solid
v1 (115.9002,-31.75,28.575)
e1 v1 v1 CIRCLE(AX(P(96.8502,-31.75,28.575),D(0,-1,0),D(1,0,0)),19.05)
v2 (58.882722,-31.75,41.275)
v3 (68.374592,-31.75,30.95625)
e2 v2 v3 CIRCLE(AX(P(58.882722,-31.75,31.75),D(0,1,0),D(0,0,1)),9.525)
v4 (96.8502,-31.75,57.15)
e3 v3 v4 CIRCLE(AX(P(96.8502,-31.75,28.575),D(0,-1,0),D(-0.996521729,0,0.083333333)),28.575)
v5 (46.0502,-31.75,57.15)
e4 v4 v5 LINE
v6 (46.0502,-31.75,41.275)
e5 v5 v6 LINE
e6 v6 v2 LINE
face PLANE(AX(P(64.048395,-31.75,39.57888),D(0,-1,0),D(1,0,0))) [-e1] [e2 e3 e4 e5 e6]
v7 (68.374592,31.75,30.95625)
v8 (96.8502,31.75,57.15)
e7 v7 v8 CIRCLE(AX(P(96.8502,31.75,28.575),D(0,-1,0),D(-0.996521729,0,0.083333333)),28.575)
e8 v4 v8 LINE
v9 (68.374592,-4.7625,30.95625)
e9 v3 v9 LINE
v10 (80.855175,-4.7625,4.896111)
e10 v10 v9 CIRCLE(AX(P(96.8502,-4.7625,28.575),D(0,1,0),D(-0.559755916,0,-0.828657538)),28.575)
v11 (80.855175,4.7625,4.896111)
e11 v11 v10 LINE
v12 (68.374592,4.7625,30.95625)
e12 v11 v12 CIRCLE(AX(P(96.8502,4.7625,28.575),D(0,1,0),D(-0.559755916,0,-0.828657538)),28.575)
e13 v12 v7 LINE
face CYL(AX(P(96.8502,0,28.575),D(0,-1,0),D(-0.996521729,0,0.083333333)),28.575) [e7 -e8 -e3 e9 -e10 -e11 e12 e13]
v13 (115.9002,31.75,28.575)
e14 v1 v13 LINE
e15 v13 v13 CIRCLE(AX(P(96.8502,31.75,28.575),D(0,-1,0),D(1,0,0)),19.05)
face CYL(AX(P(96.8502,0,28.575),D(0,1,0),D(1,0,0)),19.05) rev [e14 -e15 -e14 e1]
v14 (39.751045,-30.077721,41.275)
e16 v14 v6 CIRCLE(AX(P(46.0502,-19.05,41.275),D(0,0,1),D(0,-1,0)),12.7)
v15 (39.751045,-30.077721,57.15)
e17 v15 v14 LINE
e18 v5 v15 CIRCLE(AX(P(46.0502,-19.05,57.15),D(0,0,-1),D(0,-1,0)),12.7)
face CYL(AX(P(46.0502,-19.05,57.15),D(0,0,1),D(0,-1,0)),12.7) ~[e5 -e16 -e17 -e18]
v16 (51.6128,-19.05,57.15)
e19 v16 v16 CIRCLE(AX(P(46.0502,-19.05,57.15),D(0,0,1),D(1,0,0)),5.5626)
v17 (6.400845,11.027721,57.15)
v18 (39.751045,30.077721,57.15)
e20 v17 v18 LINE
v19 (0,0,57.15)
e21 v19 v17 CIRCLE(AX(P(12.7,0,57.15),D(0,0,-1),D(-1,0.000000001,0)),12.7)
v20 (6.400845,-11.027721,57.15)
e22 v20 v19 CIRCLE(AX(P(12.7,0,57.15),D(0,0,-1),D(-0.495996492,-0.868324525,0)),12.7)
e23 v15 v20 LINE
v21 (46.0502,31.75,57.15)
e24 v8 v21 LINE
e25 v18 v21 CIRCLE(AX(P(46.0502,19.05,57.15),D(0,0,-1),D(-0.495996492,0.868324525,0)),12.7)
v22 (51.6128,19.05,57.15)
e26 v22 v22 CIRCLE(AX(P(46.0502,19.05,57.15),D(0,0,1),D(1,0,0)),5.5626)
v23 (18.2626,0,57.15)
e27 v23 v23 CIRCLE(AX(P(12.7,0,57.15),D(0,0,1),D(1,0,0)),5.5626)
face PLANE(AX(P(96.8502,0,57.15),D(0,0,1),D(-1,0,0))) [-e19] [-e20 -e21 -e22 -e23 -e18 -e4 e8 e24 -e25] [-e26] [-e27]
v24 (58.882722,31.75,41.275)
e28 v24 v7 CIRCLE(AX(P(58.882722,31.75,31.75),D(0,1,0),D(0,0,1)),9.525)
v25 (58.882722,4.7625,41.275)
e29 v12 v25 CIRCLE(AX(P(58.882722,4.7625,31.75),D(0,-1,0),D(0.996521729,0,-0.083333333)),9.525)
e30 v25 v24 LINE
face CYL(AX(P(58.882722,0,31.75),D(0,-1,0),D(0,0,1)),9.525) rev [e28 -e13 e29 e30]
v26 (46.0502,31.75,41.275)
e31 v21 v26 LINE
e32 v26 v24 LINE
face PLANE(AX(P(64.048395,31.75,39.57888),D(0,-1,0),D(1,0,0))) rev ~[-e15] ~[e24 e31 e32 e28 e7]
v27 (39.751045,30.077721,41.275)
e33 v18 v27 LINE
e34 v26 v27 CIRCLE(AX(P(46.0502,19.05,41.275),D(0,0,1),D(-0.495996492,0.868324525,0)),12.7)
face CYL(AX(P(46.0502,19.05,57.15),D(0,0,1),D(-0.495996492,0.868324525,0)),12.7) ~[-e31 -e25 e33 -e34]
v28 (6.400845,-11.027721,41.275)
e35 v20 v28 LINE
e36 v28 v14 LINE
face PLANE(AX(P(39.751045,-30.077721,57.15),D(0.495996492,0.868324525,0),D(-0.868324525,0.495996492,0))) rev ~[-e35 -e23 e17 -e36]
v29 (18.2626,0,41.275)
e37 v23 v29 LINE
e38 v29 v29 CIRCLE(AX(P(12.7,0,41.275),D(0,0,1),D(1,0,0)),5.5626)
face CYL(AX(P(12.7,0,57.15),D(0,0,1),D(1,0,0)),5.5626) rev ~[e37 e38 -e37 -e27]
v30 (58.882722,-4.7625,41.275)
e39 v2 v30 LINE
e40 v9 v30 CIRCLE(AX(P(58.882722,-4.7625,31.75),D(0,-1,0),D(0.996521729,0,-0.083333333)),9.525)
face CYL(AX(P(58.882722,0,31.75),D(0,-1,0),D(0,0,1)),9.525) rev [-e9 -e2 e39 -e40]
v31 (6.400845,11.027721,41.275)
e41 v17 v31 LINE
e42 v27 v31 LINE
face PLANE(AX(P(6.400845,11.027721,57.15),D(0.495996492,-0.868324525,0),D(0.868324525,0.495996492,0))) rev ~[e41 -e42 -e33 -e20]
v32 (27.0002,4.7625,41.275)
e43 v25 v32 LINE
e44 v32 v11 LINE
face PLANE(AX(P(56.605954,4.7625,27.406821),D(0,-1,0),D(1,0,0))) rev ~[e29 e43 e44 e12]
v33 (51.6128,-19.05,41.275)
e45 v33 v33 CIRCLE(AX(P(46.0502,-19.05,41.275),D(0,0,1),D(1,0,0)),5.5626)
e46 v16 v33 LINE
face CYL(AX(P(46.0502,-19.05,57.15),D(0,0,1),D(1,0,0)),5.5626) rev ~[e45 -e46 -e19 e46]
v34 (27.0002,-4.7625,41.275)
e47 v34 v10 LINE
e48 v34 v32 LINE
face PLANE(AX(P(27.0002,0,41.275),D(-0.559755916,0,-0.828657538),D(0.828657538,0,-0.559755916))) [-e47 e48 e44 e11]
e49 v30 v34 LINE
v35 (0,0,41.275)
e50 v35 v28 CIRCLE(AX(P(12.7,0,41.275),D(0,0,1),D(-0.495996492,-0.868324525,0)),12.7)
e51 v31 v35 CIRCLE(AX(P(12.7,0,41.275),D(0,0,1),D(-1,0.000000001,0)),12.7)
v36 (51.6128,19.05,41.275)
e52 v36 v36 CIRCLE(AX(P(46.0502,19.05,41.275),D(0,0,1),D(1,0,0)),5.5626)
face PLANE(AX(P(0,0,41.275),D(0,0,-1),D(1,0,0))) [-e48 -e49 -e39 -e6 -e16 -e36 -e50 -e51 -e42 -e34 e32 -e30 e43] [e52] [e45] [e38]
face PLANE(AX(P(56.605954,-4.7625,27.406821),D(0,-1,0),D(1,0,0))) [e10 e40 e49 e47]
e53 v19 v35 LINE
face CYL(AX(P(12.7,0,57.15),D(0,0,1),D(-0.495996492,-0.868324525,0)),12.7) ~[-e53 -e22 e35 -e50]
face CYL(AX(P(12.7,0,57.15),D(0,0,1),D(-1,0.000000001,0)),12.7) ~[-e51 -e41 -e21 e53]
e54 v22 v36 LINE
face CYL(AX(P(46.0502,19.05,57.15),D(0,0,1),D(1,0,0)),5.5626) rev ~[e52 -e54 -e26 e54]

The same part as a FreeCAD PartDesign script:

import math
import FreeCAD as App
import Part
import Sketcher
from FreeCAD import Vector
Q = App.Units.Quantity

doc = App.newDocument("Part")
body = doc.addObject("PartDesign::Body", "Body")

# Sketch on XZ plane
sketch1 = doc.addObject("Sketcher::SketchObject", "Sketch")
body.addObject(sketch1)
sketch1.AttachmentSupport = (doc.XZ_Plane, [""])
sketch1.MapMode = "FlatFace"
sketch1.addGeometry([
    Part.LineSegment(Vector(96.8502, 57.15, 0), Vector(0, 57.15, 0)),  # 0
    Part.LineSegment(Vector(0, 57.15, 0), Vector(0, 41.275, 0)),  # 1
    Part.LineSegment(Vector(0, 41.275, 0), Vector(58.882722, 41.275, 0)),  # 2
    Part.ArcOfCircle(Part.Circle(Vector(58.882722, 31.75, 0), Vector(0, 0, 1), 9.525), math.radians(-4.780192), math.radians(90)),  # 3
    Part.ArcOfCircle(Part.Circle(Vector(96.8502, 28.575, 0), Vector(0, 0, 1), 28.575), math.radians(175.219808), math.radians(450)),  # 4
    Part.Circle(Vector(96.8502, 28.575, 0), Vector(0, 0, 1), 19.05),  # 5
], False)
sketch1.addConstraint([
    Sketcher.Constraint("Coincident", 0, 2, 1, 1),
    Sketcher.Constraint("Coincident", 1, 2, 2, 1),
    Sketcher.Constraint("Tangent", 2, 2, 3, 2),
    Sketcher.Constraint("Tangent", 3, 1, 4, 1),
    Sketcher.Constraint("Tangent", 4, 2, 0, 1),
    Sketcher.Constraint("Horizontal", 0),
    Sketcher.Constraint("Vertical", 1),
    Sketcher.Constraint("Horizontal", 2),
    Sketcher.Constraint("Coincident", 5, 3, 4, 3),
    Sketcher.Constraint("PointOnObject", 0, 2, -2),
    Sketcher.Constraint("Diameter", 5, Q("1.5 in")),
    Sketcher.Constraint("Radius", 3, Q("0.375 in")),
    Sketcher.Constraint("Radius", 4, Q("1.125 in")),
    Sketcher.Constraint("DistanceY", 3, 3, 0, 2, Q("1 in")),
    Sketcher.Constraint("DistanceX", 0, 2, 0, 1, Q("3.813 in")),
    Sketcher.Constraint("DistanceY", -1, 1, 3, 3, Q("1.25 in")),
])
pad1 = doc.addObject("PartDesign::Pad", "Pad")
body.addObject(pad1)
pad1.Profile = sketch1
pad1.Length = Q("2.5 in")
pad1.Midplane = True

# Sketch on XZ plane
sketch2 = doc.addObject("Sketcher::SketchObject", "Sketch001")
body.addObject(sketch2)
sketch2.AttachmentSupport = (doc.XZ_Plane, [""])
sketch2.MapMode = "FlatFace"
sketch2.addGeometry([
    Part.LineSegment(Vector(27.0002, 41.275, 0), Vector(80.855175, 4.896111, 0)),
    Part.ArcOfCircle(Part.Circle(Vector(96.8502, 28.575, 0), Vector(0, 0, 1), 28.575), math.radians(175.219808), math.radians(235.961081)),
    Part.ArcOfCircle(Part.Circle(Vector(58.882722, 31.75, 0), Vector(0, 0, 1), 9.525), math.radians(-4.780192), math.radians(90)),
    Part.LineSegment(Vector(58.882722, 41.275, 0), Vector(27.0002, 41.275, 0)),
], False)
sketch2.addConstraint([
    Sketcher.Constraint("Tangent", 0, 2, 1, 2),
    Sketcher.Constraint("Tangent", 1, 1, 2, 1),
    Sketcher.Constraint("Tangent", 2, 2, 3, 1),
    Sketcher.Constraint("Coincident", 3, 2, 0, 1),
    Sketcher.Constraint("Horizontal", 3),
    Sketcher.Constraint("Radius", 1, Q("1.125 in")),
    Sketcher.Constraint("Radius", 2, Q("0.375 in")),
    Sketcher.Constraint("DistanceY", 1, 3, 2, 2, Q("0.5 in")),
    Sketcher.Constraint("DistanceY", -1, 1, 2, 3, Q("1.25 in")),
    Sketcher.Constraint("DistanceX", 3, 2, 1, 3, Q("2.75 in")),
    Sketcher.Constraint("DistanceX", -1, 1, 1, 3, Q("3.813 in")),
])
pad2 = doc.addObject("PartDesign::Pad", "Pad001")
body.addObject(pad2)
pad2.Profile = sketch2
pad2.Length = Q("0.375 in")
pad2.Midplane = True

# Sketch on XY plane
sketch3 = doc.addObject("Sketcher::SketchObject", "Sketch002")
body.addObject(sketch3)
sketch3.AttachmentSupport = (doc.XY_Plane, [""])
sketch3.MapMode = "FlatFace"
sketch3.AttachmentOffset = App.Placement(Vector(0, 0, 2.25 * 25.4), App.Rotation())
sketch3.addGeometry([
    Part.ArcOfCircle(Part.Circle(Vector(12.7, 0, 0), Vector(0, 0, 1), 12.7), math.radians(119.735482), math.radians(180)),  # 0
    Part.LineSegment(Vector(6.400845, 11.027721, 0), Vector(39.751045, 30.077721, 0)),  # 1
    Part.ArcOfCircle(Part.Circle(Vector(46.0502, 19.05, 0), Vector(0, 0, 1), 12.7), math.radians(90), math.radians(119.735482)),  # 2
    Part.LineSegment(Vector(46.0502, 31.75, 0), Vector(0, 31.75, 0)),  # 3
    Part.LineSegment(Vector(0, 31.75, 0), Vector(0, 0, 0)),  # 4
    Part.ArcOfCircle(Part.Circle(Vector(12.7, 0, 0), Vector(0, 0, 1), 12.7), math.radians(180), math.radians(240.264518)),  # 5
    Part.LineSegment(Vector(0, 0, 0), Vector(0, -31.75, 0)),  # 6
    Part.LineSegment(Vector(0, -31.75, 0), Vector(46.0502, -31.75, 0)),  # 7
    Part.ArcOfCircle(Part.Circle(Vector(46.0502, -19.05, 0), Vector(0, 0, 1), 12.7), math.radians(-119.735482), math.radians(-90)),  # 8
    Part.LineSegment(Vector(39.751045, -30.077721, 0), Vector(6.400845, -11.027721, 0)),  # 9
], False)
sketch3.addConstraint([
    Sketcher.Constraint("Tangent", 0, 1, 1, 1),
    Sketcher.Constraint("Tangent", 1, 2, 2, 2),
    Sketcher.Constraint("Tangent", 2, 1, 3, 1),
    Sketcher.Constraint("Coincident", 3, 2, 4, 1),
    Sketcher.Constraint("Tangent", 4, 2, 0, 2),
    Sketcher.Constraint("Tangent", 5, 1, 6, 1),
    Sketcher.Constraint("Coincident", 6, 2, 7, 1),
    Sketcher.Constraint("Tangent", 7, 2, 8, 2),
    Sketcher.Constraint("Tangent", 8, 1, 9, 1),
    Sketcher.Constraint("Tangent", 9, 2, 5, 2),
    Sketcher.Constraint("Horizontal", 3),
    Sketcher.Constraint("Vertical", 4),
    Sketcher.Constraint("Vertical", 6),
    Sketcher.Constraint("Horizontal", 7),
    Sketcher.Constraint("Coincident", 4, 2, -1, 1),
    Sketcher.Constraint("Coincident", 5, 1, -1, 1),
    Sketcher.Constraint("Equal", 0, 2),
    Sketcher.Constraint("Equal", 2, 5),
    Sketcher.Constraint("Equal", 5, 8),
    Sketcher.Constraint("Symmetric", 2, 3, 8, 3, -1),
    Sketcher.Constraint("Radius", 0, Q("0.5 in")),
    Sketcher.Constraint("DistanceY", 7, 2, 2, 3, Q("2 in")),
    Sketcher.Constraint("DistanceX", 3, 2, 3, 1, Q("1.813 in")),
])
pocket1 = doc.addObject("PartDesign::Pocket", "Pocket")
body.addObject(pocket1)
pocket1.Profile = sketch3
pocket1.Type = "ThroughAll"

# Sketch on XY plane
sketch4 = doc.addObject("Sketcher::SketchObject", "Sketch003")
body.addObject(sketch4)
sketch4.AttachmentSupport = (doc.XY_Plane, [""])
sketch4.MapMode = "FlatFace"
sketch4.AttachmentOffset = App.Placement(Vector(0, 0, 2.25 * 25.4), App.Rotation())
sketch4.addGeometry([
    Part.Circle(Vector(12.7, 0, 0), Vector(0, 0, 1), 5.5626),
    Part.Circle(Vector(46.0502, 19.05, 0), Vector(0, 0, 1), 5.5626),
    Part.Circle(Vector(46.0502, -19.05, 0), Vector(0, 0, 1), 5.5626),
], False)
sketch4.addConstraint([
    Sketcher.Constraint("Equal", 0, 1),
    Sketcher.Constraint("Equal", 1, 2),
    Sketcher.Constraint("Symmetric", 1, 3, 2, 3, -1),
    Sketcher.Constraint("PointOnObject", 0, 3, -1),
    Sketcher.Constraint("Diameter", 0, Q("0.438 in")),
    Sketcher.Constraint("DistanceX", -1, 1, 0, 3, Q("0.5 in")),
    Sketcher.Constraint("DistanceY", 2, 3, 1, 3, Q("1.5 in")),
    Sketcher.Constraint("DistanceX", -1, 1, 1, 3, Q("1.813 in")),
])
pocket2 = doc.addObject("PartDesign::Pocket", "Pocket001")
body.addObject(pocket2)
pocket2.Profile = sketch4
pocket2.Type = "ThroughAll"

doc.recompute()
